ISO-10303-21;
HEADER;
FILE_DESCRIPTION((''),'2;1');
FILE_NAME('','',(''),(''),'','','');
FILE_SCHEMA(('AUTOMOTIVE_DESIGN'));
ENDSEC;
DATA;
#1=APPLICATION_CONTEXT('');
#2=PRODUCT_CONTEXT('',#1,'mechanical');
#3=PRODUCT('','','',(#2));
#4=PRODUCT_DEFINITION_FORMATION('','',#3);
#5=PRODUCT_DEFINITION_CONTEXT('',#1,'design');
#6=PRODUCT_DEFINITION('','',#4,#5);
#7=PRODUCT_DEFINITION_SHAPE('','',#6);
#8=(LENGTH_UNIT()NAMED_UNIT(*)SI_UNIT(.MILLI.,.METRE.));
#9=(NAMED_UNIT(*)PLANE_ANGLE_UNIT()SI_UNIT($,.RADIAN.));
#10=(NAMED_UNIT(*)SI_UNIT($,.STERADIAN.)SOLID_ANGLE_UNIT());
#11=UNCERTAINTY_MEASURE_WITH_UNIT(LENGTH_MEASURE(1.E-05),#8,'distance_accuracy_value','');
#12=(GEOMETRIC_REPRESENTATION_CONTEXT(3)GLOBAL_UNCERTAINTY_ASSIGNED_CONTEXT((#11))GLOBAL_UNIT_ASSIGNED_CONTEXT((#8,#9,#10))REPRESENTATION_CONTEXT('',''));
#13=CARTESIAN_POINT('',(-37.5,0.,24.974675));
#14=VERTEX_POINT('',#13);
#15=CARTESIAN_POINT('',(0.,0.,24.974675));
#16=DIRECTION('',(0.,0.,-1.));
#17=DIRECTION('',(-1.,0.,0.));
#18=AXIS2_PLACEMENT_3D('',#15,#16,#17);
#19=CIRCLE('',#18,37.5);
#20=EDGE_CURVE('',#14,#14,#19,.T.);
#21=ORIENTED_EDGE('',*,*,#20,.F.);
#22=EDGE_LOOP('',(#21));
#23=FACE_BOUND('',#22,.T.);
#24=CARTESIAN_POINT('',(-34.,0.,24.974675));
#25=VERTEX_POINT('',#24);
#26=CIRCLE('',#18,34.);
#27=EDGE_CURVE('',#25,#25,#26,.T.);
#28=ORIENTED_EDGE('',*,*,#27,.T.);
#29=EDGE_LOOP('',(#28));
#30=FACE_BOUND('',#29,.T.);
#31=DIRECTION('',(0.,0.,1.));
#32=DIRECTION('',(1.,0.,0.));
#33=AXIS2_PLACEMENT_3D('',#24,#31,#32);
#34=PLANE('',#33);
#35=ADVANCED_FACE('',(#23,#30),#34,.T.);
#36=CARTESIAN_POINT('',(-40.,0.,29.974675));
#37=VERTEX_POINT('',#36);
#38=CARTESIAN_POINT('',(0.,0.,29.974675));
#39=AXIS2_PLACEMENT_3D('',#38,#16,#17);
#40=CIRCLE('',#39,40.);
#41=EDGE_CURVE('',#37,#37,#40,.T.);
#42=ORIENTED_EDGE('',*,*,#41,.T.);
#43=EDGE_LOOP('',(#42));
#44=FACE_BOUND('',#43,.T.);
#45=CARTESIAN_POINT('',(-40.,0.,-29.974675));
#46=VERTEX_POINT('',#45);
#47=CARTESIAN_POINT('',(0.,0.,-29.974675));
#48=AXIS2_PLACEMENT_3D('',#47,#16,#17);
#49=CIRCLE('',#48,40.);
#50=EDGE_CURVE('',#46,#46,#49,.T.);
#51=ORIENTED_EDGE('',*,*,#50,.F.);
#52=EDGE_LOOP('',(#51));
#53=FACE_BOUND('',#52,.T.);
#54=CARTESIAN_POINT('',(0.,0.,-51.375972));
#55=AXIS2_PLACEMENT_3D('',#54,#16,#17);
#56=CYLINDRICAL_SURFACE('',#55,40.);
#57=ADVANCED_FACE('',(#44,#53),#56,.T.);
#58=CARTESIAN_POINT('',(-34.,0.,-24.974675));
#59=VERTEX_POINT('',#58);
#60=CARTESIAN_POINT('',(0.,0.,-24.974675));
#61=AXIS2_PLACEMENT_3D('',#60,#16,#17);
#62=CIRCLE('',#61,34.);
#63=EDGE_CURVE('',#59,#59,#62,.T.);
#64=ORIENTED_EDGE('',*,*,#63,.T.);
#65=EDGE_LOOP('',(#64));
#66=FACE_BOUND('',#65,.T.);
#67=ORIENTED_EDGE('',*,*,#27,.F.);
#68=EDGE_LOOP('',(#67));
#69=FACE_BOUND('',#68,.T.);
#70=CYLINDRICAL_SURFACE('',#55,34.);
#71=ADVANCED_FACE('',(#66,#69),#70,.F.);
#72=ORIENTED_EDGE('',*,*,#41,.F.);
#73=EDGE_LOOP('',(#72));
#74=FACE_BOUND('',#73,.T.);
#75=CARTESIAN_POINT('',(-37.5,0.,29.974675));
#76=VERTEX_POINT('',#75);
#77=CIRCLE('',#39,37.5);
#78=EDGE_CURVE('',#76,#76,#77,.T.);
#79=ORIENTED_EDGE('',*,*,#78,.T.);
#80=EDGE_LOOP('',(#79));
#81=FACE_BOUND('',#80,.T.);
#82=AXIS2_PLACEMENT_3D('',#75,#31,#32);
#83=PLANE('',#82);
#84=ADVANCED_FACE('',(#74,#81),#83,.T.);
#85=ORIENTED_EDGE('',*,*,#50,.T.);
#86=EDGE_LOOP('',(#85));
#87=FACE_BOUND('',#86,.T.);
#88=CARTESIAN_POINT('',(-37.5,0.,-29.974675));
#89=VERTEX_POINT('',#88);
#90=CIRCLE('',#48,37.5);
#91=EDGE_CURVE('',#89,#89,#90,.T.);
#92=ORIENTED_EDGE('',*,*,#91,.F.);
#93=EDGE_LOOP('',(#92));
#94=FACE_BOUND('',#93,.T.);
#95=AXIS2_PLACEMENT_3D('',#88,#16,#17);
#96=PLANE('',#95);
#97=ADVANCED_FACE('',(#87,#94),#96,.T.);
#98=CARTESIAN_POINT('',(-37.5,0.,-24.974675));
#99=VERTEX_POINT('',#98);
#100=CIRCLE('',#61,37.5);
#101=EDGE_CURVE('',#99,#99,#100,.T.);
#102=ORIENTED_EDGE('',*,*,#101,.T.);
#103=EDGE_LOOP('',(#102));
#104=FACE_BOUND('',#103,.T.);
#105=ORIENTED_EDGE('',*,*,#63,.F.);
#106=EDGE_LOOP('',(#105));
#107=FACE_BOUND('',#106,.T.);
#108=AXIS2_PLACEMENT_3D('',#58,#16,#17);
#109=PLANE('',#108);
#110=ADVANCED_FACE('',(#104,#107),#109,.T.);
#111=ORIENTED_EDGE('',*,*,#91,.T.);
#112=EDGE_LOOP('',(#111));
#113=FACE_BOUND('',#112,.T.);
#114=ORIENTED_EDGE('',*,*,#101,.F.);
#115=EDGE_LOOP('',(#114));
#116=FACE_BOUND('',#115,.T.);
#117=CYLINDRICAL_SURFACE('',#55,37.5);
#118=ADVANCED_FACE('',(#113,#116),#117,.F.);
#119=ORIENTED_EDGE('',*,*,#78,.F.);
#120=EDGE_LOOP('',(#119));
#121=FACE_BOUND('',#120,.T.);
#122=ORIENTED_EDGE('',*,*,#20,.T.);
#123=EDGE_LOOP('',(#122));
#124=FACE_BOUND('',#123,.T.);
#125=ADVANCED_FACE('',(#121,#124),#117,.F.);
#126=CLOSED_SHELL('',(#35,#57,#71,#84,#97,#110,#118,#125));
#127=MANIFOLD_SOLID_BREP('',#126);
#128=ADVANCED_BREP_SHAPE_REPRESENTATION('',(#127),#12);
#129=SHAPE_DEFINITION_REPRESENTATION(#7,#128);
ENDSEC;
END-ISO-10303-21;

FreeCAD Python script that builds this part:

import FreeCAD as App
import Part
import Sketcher

doc = App.newDocument("Part")
body = doc.addObject("PartDesign::Body", "Body")

sketch1 = body.newObject("Sketcher::SketchObject", "Sketch")
sketch1.AttachmentSupport = (doc.getObject("XZ_Plane"), [""])
sketch1.MapMode = "FlatFace"
sketch1.addGeometry([
    Part.LineSegment(App.Vector(-34, 25, 0), App.Vector(-34, -25, 0)),
    Part.LineSegment(App.Vector(-34, -25, 0), App.Vector(-37.5, -25, 0)),
    Part.LineSegment(App.Vector(-37.5, -25, 0), App.Vector(-37.5, -30, 0)),
    Part.LineSegment(App.Vector(-37.5, -30, 0), App.Vector(-40, -30, 0)),
    Part.LineSegment(App.Vector(-40, -30, 0), App.Vector(-40, 30, 0)),
    Part.LineSegment(App.Vector(-40, 30, 0), App.Vector(-37.5, 30, 0)),
    Part.LineSegment(App.Vector(-37.5, 30, 0), App.Vector(-37.5, 25, 0)),
    Part.LineSegment(App.Vector(-37.5, 25, 0), App.Vector(-34, 25, 0)),
], False)
sketch1.addConstraint([
    Sketcher.Constraint("Coincident", 0, 2, 1, 1),
    Sketcher.Constraint("Coincident", 1, 2, 2, 1),
    Sketcher.Constraint("Coincident", 2, 2, 3, 1),
    Sketcher.Constraint("Coincident", 3, 2, 4, 1),
    Sketcher.Constraint("Coincident", 4, 2, 5, 1),
    Sketcher.Constraint("Coincident", 5, 2, 6, 1),
    Sketcher.Constraint("Coincident", 6, 2, 7, 1),
    Sketcher.Constraint("Coincident", 7, 2, 0, 1),
    Sketcher.Constraint("Vertical", 0),
    Sketcher.Constraint("Horizontal", 1),
    Sketcher.Constraint("Vertical", 2),
    Sketcher.Constraint("Horizontal", 3),
    Sketcher.Constraint("Vertical", 4),
    Sketcher.Constraint("Horizontal", 5),
    Sketcher.Constraint("Vertical", 6),
    Sketcher.Constraint("Horizontal", 7),
    Sketcher.Constraint("Symmetric", 2, 2, 5, 2, -1),
    Sketcher.Constraint("Equal", 2, 6),
    Sketcher.Constraint("DistanceY", 2, 2, 2, 1, 5.0),
    Sketcher.Constraint("DistanceX", 1, 2, 1, 1, 3.5),
    Sketcher.Constraint("DistanceX", 3, 2, 3, 1, 2.5),
    Sketcher.Constraint("DistanceX", 0, 2, -1, 1, 34.0),
    Sketcher.Constraint("DistanceY", 0, 2, 0, 1, 49.949351),
])
revolution = body.newObject("PartDesign::Revolution", "Revolution")
revolution.Profile = sketch1
revolution.ReferenceAxis = (sketch1, ["V_Axis"])
revolution.Angle = 360

doc.recompute()
